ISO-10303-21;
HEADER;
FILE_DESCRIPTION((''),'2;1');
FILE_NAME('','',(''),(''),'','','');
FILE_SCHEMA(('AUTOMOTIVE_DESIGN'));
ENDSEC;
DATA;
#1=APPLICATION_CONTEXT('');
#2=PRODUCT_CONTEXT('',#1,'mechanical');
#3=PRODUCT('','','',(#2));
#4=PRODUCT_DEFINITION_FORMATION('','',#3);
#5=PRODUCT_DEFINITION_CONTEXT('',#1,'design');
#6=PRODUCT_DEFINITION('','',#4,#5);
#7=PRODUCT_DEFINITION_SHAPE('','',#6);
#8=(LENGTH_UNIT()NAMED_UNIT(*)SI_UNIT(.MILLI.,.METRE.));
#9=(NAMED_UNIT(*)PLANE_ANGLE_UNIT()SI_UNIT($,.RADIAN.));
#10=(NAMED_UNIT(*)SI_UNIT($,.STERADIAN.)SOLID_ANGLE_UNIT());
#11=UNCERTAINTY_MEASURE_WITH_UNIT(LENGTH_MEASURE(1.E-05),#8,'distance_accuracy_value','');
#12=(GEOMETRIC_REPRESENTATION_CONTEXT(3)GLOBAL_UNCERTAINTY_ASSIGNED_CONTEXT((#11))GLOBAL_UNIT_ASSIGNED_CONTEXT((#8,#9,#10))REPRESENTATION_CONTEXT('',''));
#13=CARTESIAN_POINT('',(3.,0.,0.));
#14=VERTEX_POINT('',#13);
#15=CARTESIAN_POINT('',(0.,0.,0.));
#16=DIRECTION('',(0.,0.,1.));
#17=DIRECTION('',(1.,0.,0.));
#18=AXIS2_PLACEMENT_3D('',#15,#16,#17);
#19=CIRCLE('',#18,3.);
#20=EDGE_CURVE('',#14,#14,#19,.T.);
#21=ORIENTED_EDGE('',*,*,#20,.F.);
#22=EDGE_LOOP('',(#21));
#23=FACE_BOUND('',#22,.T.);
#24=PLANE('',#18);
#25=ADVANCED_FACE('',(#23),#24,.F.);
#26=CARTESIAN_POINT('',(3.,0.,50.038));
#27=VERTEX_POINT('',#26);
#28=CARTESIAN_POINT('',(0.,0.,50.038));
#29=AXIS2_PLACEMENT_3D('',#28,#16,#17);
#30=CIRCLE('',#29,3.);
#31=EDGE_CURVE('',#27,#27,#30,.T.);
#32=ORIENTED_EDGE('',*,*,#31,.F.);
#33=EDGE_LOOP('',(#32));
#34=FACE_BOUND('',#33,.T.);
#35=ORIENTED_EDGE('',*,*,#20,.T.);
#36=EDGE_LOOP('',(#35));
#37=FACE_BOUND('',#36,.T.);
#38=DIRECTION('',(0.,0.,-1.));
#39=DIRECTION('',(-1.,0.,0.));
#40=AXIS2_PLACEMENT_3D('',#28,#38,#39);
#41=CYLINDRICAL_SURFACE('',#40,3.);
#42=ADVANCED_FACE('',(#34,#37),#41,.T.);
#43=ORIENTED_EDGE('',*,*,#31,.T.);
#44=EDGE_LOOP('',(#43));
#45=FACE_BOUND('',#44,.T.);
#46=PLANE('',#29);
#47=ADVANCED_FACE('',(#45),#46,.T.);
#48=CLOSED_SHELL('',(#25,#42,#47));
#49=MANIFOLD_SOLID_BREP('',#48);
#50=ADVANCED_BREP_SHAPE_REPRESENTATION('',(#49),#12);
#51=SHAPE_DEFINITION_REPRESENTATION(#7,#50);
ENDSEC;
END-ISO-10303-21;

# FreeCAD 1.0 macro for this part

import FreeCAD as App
import Part
import Sketcher

V = App.Vector
Q = App.Units.Quantity

doc = App.newDocument("Part")
body = doc.addObject("PartDesign::Body", "Body")

sketch1 = body.newObject("Sketcher::SketchObject", "Sketch")
sketch1.AttachmentSupport = (doc.getObject("XY_Plane"), [""])
sketch1.MapMode = "FlatFace"
sketch1.addGeometry(Part.Circle(V(0, 0, 0), V(0, 0, 1), 3), False)
sketch1.addConstraint([
    Sketcher.Constraint("Coincident", 0, 3, -1, 1),
    Sketcher.Constraint("Diameter", 0, Q("6 mm")),
])
pad1 = body.newObject("PartDesign::Pad", "Pad")
pad1.Profile = sketch1
pad1.Length = 50.038

doc.recompute()
